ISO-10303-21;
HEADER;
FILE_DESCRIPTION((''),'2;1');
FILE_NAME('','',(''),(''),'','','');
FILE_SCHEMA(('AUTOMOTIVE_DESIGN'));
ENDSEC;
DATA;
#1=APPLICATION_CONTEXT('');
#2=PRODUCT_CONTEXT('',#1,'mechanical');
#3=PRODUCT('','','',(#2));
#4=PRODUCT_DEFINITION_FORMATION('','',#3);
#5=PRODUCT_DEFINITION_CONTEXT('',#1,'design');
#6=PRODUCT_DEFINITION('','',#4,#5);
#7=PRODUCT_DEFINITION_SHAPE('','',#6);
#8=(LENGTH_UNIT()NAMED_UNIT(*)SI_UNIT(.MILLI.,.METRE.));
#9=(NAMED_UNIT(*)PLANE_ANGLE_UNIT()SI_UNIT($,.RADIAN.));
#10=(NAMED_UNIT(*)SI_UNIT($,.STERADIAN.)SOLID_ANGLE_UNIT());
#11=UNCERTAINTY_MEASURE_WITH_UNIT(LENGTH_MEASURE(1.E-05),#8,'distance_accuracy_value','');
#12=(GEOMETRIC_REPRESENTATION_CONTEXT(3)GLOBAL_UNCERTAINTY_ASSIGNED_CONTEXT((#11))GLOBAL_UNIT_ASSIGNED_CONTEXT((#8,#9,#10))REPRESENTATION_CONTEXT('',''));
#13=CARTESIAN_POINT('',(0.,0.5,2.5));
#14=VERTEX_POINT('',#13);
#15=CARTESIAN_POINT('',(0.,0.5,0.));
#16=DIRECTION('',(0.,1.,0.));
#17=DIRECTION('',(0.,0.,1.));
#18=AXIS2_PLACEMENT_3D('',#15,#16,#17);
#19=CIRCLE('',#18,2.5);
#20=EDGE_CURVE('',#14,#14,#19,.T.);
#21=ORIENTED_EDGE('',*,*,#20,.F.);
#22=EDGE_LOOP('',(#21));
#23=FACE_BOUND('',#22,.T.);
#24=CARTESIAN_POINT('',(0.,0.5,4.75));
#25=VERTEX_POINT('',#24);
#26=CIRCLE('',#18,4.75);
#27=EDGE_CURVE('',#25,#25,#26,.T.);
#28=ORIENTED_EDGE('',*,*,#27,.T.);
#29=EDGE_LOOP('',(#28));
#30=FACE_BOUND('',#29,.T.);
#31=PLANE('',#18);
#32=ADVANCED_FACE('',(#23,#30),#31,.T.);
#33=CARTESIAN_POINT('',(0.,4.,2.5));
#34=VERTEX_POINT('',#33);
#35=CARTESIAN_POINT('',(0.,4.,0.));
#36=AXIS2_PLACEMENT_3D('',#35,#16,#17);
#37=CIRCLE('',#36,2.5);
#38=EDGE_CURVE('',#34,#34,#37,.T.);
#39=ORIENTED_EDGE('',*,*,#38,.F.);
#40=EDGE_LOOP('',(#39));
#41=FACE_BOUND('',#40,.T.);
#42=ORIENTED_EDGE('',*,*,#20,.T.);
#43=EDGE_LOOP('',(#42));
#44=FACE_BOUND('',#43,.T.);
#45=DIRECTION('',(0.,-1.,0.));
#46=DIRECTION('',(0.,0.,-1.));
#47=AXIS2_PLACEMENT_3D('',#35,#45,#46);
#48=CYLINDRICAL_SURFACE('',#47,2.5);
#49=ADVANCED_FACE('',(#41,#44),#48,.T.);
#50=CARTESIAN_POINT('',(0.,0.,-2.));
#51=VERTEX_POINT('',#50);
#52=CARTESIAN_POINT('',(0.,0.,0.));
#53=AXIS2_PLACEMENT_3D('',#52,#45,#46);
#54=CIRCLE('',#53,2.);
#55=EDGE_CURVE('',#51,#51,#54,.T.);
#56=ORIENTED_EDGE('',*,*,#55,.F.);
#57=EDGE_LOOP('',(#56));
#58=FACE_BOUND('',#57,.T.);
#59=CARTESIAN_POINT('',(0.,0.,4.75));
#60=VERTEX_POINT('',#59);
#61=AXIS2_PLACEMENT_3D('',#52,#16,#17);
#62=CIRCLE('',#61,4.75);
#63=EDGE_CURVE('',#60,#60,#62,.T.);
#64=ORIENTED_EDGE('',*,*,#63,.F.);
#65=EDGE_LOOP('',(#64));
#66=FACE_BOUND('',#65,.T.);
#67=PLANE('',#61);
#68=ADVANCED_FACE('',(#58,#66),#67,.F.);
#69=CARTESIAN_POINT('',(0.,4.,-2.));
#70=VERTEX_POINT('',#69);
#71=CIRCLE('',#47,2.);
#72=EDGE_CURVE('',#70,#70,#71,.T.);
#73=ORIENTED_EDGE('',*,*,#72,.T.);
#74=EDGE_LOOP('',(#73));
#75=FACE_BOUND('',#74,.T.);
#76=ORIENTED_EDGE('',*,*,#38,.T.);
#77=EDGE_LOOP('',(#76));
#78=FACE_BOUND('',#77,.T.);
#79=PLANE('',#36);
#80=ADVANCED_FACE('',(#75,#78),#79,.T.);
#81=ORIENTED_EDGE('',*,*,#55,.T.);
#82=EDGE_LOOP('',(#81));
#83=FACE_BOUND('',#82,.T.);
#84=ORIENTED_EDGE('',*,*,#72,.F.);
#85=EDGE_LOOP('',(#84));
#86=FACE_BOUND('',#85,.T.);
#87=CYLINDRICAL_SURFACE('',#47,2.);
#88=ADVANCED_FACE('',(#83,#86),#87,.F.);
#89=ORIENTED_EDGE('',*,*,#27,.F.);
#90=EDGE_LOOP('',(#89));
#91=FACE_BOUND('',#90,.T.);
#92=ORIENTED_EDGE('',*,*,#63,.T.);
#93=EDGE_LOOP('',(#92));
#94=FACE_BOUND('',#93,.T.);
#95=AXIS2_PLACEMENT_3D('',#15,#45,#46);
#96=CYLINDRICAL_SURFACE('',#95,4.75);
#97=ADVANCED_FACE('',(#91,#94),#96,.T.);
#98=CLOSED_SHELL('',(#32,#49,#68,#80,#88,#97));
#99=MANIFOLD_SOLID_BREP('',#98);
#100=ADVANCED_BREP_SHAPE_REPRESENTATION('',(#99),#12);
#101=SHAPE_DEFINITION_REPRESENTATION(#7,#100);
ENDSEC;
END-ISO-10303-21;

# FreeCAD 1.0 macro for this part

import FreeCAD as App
import Part
import Sketcher
from FreeCAD import Vector

doc = App.newDocument("Part")
params = doc.addObject("Spreadsheet::Sheet", "Params")
for row, (alias, value) in enumerate([
    ("sketch1_diameter", "9.5 mm"),
    ("pad1_length", "0.5 mm"),
    ("sketch2_diameter", "5 mm"),
    ("pad2_length", "3.5 mm"),
    ("sketch3_diameter", "4 mm"),
], start=1):
    params.set(f"A{row}", alias)
    params.set(f"B{row}", "=" + value)
    params.setAlias(f"B{row}", alias)

body = doc.addObject("PartDesign::Body", "Body")

sketch1 = doc.addObject("Sketcher::SketchObject", "Sketch")
body.addObject(sketch1)
sketch1.AttachmentSupport = (doc.XZ_Plane, [""])
sketch1.MapMode = "FlatFace"
sketch1.addGeometry(Part.Circle(Vector(0, 0, 0), Vector(0, 0, 1), 4.8), False)
sketch1.addConstraint([
    Sketcher.Constraint("Coincident", 0, 3, -1, 1),
    Sketcher.Constraint("Diameter", 0, 9.5),
])
sketch1.setExpression("Constraints[1]", "Params.sketch1_diameter")
pad1 = doc.addObject("PartDesign::Pad", "Pad")
body.addObject(pad1)
pad1.Profile = sketch1
pad1.setExpression("Length", "Params.pad1_length")
pad1.Reversed = True

sketch2 = doc.addObject("Sketcher::SketchObject", "Sketch001")
body.addObject(sketch2)
sketch2.AttachmentSupport = (doc.XZ_Plane, [""])
sketch2.MapMode = "FlatFace"
sketch2.AttachmentOffset = App.Placement(Vector(0, 0, -0.5), App.Rotation())
sketch2.addGeometry(Part.Circle(Vector(0, 0, 0), Vector(0, 0, 1), 2.5), False)
sketch2.addConstraint([
    Sketcher.Constraint("Coincident", 0, 3, -1, 1),
    Sketcher.Constraint("Diameter", 0, 5.0),
])
sketch2.setExpression("Constraints[1]", "Params.sketch2_diameter")
pad2 = doc.addObject("PartDesign::Pad", "Pad001")
body.addObject(pad2)
pad2.Profile = sketch2
pad2.setExpression("Length", "Params.pad2_length")
pad2.Reversed = True

sketch3 = doc.addObject("Sketcher::SketchObject", "Sketch002")
body.addObject(sketch3)
sketch3.AttachmentSupport = (doc.XZ_Plane, [""])
sketch3.MapMode = "FlatFace"
sketch3.addGeometry(Part.Circle(Vector(0, 0, 0), Vector(0, 0, 1), 2), False)
sketch3.addConstraint([
    Sketcher.Constraint("Coincident", 0, 3, -1, 1),
    Sketcher.Constraint("Diameter", 0, 4.0),
])
sketch3.setExpression("Constraints[1]", "Params.sketch3_diameter")
pocket1 = doc.addObject("PartDesign::Pocket", "Pocket")
body.addObject(pocket1)
pocket1.Profile = sketch3
pocket1.Type = "ThroughAll"

doc.recompute()
